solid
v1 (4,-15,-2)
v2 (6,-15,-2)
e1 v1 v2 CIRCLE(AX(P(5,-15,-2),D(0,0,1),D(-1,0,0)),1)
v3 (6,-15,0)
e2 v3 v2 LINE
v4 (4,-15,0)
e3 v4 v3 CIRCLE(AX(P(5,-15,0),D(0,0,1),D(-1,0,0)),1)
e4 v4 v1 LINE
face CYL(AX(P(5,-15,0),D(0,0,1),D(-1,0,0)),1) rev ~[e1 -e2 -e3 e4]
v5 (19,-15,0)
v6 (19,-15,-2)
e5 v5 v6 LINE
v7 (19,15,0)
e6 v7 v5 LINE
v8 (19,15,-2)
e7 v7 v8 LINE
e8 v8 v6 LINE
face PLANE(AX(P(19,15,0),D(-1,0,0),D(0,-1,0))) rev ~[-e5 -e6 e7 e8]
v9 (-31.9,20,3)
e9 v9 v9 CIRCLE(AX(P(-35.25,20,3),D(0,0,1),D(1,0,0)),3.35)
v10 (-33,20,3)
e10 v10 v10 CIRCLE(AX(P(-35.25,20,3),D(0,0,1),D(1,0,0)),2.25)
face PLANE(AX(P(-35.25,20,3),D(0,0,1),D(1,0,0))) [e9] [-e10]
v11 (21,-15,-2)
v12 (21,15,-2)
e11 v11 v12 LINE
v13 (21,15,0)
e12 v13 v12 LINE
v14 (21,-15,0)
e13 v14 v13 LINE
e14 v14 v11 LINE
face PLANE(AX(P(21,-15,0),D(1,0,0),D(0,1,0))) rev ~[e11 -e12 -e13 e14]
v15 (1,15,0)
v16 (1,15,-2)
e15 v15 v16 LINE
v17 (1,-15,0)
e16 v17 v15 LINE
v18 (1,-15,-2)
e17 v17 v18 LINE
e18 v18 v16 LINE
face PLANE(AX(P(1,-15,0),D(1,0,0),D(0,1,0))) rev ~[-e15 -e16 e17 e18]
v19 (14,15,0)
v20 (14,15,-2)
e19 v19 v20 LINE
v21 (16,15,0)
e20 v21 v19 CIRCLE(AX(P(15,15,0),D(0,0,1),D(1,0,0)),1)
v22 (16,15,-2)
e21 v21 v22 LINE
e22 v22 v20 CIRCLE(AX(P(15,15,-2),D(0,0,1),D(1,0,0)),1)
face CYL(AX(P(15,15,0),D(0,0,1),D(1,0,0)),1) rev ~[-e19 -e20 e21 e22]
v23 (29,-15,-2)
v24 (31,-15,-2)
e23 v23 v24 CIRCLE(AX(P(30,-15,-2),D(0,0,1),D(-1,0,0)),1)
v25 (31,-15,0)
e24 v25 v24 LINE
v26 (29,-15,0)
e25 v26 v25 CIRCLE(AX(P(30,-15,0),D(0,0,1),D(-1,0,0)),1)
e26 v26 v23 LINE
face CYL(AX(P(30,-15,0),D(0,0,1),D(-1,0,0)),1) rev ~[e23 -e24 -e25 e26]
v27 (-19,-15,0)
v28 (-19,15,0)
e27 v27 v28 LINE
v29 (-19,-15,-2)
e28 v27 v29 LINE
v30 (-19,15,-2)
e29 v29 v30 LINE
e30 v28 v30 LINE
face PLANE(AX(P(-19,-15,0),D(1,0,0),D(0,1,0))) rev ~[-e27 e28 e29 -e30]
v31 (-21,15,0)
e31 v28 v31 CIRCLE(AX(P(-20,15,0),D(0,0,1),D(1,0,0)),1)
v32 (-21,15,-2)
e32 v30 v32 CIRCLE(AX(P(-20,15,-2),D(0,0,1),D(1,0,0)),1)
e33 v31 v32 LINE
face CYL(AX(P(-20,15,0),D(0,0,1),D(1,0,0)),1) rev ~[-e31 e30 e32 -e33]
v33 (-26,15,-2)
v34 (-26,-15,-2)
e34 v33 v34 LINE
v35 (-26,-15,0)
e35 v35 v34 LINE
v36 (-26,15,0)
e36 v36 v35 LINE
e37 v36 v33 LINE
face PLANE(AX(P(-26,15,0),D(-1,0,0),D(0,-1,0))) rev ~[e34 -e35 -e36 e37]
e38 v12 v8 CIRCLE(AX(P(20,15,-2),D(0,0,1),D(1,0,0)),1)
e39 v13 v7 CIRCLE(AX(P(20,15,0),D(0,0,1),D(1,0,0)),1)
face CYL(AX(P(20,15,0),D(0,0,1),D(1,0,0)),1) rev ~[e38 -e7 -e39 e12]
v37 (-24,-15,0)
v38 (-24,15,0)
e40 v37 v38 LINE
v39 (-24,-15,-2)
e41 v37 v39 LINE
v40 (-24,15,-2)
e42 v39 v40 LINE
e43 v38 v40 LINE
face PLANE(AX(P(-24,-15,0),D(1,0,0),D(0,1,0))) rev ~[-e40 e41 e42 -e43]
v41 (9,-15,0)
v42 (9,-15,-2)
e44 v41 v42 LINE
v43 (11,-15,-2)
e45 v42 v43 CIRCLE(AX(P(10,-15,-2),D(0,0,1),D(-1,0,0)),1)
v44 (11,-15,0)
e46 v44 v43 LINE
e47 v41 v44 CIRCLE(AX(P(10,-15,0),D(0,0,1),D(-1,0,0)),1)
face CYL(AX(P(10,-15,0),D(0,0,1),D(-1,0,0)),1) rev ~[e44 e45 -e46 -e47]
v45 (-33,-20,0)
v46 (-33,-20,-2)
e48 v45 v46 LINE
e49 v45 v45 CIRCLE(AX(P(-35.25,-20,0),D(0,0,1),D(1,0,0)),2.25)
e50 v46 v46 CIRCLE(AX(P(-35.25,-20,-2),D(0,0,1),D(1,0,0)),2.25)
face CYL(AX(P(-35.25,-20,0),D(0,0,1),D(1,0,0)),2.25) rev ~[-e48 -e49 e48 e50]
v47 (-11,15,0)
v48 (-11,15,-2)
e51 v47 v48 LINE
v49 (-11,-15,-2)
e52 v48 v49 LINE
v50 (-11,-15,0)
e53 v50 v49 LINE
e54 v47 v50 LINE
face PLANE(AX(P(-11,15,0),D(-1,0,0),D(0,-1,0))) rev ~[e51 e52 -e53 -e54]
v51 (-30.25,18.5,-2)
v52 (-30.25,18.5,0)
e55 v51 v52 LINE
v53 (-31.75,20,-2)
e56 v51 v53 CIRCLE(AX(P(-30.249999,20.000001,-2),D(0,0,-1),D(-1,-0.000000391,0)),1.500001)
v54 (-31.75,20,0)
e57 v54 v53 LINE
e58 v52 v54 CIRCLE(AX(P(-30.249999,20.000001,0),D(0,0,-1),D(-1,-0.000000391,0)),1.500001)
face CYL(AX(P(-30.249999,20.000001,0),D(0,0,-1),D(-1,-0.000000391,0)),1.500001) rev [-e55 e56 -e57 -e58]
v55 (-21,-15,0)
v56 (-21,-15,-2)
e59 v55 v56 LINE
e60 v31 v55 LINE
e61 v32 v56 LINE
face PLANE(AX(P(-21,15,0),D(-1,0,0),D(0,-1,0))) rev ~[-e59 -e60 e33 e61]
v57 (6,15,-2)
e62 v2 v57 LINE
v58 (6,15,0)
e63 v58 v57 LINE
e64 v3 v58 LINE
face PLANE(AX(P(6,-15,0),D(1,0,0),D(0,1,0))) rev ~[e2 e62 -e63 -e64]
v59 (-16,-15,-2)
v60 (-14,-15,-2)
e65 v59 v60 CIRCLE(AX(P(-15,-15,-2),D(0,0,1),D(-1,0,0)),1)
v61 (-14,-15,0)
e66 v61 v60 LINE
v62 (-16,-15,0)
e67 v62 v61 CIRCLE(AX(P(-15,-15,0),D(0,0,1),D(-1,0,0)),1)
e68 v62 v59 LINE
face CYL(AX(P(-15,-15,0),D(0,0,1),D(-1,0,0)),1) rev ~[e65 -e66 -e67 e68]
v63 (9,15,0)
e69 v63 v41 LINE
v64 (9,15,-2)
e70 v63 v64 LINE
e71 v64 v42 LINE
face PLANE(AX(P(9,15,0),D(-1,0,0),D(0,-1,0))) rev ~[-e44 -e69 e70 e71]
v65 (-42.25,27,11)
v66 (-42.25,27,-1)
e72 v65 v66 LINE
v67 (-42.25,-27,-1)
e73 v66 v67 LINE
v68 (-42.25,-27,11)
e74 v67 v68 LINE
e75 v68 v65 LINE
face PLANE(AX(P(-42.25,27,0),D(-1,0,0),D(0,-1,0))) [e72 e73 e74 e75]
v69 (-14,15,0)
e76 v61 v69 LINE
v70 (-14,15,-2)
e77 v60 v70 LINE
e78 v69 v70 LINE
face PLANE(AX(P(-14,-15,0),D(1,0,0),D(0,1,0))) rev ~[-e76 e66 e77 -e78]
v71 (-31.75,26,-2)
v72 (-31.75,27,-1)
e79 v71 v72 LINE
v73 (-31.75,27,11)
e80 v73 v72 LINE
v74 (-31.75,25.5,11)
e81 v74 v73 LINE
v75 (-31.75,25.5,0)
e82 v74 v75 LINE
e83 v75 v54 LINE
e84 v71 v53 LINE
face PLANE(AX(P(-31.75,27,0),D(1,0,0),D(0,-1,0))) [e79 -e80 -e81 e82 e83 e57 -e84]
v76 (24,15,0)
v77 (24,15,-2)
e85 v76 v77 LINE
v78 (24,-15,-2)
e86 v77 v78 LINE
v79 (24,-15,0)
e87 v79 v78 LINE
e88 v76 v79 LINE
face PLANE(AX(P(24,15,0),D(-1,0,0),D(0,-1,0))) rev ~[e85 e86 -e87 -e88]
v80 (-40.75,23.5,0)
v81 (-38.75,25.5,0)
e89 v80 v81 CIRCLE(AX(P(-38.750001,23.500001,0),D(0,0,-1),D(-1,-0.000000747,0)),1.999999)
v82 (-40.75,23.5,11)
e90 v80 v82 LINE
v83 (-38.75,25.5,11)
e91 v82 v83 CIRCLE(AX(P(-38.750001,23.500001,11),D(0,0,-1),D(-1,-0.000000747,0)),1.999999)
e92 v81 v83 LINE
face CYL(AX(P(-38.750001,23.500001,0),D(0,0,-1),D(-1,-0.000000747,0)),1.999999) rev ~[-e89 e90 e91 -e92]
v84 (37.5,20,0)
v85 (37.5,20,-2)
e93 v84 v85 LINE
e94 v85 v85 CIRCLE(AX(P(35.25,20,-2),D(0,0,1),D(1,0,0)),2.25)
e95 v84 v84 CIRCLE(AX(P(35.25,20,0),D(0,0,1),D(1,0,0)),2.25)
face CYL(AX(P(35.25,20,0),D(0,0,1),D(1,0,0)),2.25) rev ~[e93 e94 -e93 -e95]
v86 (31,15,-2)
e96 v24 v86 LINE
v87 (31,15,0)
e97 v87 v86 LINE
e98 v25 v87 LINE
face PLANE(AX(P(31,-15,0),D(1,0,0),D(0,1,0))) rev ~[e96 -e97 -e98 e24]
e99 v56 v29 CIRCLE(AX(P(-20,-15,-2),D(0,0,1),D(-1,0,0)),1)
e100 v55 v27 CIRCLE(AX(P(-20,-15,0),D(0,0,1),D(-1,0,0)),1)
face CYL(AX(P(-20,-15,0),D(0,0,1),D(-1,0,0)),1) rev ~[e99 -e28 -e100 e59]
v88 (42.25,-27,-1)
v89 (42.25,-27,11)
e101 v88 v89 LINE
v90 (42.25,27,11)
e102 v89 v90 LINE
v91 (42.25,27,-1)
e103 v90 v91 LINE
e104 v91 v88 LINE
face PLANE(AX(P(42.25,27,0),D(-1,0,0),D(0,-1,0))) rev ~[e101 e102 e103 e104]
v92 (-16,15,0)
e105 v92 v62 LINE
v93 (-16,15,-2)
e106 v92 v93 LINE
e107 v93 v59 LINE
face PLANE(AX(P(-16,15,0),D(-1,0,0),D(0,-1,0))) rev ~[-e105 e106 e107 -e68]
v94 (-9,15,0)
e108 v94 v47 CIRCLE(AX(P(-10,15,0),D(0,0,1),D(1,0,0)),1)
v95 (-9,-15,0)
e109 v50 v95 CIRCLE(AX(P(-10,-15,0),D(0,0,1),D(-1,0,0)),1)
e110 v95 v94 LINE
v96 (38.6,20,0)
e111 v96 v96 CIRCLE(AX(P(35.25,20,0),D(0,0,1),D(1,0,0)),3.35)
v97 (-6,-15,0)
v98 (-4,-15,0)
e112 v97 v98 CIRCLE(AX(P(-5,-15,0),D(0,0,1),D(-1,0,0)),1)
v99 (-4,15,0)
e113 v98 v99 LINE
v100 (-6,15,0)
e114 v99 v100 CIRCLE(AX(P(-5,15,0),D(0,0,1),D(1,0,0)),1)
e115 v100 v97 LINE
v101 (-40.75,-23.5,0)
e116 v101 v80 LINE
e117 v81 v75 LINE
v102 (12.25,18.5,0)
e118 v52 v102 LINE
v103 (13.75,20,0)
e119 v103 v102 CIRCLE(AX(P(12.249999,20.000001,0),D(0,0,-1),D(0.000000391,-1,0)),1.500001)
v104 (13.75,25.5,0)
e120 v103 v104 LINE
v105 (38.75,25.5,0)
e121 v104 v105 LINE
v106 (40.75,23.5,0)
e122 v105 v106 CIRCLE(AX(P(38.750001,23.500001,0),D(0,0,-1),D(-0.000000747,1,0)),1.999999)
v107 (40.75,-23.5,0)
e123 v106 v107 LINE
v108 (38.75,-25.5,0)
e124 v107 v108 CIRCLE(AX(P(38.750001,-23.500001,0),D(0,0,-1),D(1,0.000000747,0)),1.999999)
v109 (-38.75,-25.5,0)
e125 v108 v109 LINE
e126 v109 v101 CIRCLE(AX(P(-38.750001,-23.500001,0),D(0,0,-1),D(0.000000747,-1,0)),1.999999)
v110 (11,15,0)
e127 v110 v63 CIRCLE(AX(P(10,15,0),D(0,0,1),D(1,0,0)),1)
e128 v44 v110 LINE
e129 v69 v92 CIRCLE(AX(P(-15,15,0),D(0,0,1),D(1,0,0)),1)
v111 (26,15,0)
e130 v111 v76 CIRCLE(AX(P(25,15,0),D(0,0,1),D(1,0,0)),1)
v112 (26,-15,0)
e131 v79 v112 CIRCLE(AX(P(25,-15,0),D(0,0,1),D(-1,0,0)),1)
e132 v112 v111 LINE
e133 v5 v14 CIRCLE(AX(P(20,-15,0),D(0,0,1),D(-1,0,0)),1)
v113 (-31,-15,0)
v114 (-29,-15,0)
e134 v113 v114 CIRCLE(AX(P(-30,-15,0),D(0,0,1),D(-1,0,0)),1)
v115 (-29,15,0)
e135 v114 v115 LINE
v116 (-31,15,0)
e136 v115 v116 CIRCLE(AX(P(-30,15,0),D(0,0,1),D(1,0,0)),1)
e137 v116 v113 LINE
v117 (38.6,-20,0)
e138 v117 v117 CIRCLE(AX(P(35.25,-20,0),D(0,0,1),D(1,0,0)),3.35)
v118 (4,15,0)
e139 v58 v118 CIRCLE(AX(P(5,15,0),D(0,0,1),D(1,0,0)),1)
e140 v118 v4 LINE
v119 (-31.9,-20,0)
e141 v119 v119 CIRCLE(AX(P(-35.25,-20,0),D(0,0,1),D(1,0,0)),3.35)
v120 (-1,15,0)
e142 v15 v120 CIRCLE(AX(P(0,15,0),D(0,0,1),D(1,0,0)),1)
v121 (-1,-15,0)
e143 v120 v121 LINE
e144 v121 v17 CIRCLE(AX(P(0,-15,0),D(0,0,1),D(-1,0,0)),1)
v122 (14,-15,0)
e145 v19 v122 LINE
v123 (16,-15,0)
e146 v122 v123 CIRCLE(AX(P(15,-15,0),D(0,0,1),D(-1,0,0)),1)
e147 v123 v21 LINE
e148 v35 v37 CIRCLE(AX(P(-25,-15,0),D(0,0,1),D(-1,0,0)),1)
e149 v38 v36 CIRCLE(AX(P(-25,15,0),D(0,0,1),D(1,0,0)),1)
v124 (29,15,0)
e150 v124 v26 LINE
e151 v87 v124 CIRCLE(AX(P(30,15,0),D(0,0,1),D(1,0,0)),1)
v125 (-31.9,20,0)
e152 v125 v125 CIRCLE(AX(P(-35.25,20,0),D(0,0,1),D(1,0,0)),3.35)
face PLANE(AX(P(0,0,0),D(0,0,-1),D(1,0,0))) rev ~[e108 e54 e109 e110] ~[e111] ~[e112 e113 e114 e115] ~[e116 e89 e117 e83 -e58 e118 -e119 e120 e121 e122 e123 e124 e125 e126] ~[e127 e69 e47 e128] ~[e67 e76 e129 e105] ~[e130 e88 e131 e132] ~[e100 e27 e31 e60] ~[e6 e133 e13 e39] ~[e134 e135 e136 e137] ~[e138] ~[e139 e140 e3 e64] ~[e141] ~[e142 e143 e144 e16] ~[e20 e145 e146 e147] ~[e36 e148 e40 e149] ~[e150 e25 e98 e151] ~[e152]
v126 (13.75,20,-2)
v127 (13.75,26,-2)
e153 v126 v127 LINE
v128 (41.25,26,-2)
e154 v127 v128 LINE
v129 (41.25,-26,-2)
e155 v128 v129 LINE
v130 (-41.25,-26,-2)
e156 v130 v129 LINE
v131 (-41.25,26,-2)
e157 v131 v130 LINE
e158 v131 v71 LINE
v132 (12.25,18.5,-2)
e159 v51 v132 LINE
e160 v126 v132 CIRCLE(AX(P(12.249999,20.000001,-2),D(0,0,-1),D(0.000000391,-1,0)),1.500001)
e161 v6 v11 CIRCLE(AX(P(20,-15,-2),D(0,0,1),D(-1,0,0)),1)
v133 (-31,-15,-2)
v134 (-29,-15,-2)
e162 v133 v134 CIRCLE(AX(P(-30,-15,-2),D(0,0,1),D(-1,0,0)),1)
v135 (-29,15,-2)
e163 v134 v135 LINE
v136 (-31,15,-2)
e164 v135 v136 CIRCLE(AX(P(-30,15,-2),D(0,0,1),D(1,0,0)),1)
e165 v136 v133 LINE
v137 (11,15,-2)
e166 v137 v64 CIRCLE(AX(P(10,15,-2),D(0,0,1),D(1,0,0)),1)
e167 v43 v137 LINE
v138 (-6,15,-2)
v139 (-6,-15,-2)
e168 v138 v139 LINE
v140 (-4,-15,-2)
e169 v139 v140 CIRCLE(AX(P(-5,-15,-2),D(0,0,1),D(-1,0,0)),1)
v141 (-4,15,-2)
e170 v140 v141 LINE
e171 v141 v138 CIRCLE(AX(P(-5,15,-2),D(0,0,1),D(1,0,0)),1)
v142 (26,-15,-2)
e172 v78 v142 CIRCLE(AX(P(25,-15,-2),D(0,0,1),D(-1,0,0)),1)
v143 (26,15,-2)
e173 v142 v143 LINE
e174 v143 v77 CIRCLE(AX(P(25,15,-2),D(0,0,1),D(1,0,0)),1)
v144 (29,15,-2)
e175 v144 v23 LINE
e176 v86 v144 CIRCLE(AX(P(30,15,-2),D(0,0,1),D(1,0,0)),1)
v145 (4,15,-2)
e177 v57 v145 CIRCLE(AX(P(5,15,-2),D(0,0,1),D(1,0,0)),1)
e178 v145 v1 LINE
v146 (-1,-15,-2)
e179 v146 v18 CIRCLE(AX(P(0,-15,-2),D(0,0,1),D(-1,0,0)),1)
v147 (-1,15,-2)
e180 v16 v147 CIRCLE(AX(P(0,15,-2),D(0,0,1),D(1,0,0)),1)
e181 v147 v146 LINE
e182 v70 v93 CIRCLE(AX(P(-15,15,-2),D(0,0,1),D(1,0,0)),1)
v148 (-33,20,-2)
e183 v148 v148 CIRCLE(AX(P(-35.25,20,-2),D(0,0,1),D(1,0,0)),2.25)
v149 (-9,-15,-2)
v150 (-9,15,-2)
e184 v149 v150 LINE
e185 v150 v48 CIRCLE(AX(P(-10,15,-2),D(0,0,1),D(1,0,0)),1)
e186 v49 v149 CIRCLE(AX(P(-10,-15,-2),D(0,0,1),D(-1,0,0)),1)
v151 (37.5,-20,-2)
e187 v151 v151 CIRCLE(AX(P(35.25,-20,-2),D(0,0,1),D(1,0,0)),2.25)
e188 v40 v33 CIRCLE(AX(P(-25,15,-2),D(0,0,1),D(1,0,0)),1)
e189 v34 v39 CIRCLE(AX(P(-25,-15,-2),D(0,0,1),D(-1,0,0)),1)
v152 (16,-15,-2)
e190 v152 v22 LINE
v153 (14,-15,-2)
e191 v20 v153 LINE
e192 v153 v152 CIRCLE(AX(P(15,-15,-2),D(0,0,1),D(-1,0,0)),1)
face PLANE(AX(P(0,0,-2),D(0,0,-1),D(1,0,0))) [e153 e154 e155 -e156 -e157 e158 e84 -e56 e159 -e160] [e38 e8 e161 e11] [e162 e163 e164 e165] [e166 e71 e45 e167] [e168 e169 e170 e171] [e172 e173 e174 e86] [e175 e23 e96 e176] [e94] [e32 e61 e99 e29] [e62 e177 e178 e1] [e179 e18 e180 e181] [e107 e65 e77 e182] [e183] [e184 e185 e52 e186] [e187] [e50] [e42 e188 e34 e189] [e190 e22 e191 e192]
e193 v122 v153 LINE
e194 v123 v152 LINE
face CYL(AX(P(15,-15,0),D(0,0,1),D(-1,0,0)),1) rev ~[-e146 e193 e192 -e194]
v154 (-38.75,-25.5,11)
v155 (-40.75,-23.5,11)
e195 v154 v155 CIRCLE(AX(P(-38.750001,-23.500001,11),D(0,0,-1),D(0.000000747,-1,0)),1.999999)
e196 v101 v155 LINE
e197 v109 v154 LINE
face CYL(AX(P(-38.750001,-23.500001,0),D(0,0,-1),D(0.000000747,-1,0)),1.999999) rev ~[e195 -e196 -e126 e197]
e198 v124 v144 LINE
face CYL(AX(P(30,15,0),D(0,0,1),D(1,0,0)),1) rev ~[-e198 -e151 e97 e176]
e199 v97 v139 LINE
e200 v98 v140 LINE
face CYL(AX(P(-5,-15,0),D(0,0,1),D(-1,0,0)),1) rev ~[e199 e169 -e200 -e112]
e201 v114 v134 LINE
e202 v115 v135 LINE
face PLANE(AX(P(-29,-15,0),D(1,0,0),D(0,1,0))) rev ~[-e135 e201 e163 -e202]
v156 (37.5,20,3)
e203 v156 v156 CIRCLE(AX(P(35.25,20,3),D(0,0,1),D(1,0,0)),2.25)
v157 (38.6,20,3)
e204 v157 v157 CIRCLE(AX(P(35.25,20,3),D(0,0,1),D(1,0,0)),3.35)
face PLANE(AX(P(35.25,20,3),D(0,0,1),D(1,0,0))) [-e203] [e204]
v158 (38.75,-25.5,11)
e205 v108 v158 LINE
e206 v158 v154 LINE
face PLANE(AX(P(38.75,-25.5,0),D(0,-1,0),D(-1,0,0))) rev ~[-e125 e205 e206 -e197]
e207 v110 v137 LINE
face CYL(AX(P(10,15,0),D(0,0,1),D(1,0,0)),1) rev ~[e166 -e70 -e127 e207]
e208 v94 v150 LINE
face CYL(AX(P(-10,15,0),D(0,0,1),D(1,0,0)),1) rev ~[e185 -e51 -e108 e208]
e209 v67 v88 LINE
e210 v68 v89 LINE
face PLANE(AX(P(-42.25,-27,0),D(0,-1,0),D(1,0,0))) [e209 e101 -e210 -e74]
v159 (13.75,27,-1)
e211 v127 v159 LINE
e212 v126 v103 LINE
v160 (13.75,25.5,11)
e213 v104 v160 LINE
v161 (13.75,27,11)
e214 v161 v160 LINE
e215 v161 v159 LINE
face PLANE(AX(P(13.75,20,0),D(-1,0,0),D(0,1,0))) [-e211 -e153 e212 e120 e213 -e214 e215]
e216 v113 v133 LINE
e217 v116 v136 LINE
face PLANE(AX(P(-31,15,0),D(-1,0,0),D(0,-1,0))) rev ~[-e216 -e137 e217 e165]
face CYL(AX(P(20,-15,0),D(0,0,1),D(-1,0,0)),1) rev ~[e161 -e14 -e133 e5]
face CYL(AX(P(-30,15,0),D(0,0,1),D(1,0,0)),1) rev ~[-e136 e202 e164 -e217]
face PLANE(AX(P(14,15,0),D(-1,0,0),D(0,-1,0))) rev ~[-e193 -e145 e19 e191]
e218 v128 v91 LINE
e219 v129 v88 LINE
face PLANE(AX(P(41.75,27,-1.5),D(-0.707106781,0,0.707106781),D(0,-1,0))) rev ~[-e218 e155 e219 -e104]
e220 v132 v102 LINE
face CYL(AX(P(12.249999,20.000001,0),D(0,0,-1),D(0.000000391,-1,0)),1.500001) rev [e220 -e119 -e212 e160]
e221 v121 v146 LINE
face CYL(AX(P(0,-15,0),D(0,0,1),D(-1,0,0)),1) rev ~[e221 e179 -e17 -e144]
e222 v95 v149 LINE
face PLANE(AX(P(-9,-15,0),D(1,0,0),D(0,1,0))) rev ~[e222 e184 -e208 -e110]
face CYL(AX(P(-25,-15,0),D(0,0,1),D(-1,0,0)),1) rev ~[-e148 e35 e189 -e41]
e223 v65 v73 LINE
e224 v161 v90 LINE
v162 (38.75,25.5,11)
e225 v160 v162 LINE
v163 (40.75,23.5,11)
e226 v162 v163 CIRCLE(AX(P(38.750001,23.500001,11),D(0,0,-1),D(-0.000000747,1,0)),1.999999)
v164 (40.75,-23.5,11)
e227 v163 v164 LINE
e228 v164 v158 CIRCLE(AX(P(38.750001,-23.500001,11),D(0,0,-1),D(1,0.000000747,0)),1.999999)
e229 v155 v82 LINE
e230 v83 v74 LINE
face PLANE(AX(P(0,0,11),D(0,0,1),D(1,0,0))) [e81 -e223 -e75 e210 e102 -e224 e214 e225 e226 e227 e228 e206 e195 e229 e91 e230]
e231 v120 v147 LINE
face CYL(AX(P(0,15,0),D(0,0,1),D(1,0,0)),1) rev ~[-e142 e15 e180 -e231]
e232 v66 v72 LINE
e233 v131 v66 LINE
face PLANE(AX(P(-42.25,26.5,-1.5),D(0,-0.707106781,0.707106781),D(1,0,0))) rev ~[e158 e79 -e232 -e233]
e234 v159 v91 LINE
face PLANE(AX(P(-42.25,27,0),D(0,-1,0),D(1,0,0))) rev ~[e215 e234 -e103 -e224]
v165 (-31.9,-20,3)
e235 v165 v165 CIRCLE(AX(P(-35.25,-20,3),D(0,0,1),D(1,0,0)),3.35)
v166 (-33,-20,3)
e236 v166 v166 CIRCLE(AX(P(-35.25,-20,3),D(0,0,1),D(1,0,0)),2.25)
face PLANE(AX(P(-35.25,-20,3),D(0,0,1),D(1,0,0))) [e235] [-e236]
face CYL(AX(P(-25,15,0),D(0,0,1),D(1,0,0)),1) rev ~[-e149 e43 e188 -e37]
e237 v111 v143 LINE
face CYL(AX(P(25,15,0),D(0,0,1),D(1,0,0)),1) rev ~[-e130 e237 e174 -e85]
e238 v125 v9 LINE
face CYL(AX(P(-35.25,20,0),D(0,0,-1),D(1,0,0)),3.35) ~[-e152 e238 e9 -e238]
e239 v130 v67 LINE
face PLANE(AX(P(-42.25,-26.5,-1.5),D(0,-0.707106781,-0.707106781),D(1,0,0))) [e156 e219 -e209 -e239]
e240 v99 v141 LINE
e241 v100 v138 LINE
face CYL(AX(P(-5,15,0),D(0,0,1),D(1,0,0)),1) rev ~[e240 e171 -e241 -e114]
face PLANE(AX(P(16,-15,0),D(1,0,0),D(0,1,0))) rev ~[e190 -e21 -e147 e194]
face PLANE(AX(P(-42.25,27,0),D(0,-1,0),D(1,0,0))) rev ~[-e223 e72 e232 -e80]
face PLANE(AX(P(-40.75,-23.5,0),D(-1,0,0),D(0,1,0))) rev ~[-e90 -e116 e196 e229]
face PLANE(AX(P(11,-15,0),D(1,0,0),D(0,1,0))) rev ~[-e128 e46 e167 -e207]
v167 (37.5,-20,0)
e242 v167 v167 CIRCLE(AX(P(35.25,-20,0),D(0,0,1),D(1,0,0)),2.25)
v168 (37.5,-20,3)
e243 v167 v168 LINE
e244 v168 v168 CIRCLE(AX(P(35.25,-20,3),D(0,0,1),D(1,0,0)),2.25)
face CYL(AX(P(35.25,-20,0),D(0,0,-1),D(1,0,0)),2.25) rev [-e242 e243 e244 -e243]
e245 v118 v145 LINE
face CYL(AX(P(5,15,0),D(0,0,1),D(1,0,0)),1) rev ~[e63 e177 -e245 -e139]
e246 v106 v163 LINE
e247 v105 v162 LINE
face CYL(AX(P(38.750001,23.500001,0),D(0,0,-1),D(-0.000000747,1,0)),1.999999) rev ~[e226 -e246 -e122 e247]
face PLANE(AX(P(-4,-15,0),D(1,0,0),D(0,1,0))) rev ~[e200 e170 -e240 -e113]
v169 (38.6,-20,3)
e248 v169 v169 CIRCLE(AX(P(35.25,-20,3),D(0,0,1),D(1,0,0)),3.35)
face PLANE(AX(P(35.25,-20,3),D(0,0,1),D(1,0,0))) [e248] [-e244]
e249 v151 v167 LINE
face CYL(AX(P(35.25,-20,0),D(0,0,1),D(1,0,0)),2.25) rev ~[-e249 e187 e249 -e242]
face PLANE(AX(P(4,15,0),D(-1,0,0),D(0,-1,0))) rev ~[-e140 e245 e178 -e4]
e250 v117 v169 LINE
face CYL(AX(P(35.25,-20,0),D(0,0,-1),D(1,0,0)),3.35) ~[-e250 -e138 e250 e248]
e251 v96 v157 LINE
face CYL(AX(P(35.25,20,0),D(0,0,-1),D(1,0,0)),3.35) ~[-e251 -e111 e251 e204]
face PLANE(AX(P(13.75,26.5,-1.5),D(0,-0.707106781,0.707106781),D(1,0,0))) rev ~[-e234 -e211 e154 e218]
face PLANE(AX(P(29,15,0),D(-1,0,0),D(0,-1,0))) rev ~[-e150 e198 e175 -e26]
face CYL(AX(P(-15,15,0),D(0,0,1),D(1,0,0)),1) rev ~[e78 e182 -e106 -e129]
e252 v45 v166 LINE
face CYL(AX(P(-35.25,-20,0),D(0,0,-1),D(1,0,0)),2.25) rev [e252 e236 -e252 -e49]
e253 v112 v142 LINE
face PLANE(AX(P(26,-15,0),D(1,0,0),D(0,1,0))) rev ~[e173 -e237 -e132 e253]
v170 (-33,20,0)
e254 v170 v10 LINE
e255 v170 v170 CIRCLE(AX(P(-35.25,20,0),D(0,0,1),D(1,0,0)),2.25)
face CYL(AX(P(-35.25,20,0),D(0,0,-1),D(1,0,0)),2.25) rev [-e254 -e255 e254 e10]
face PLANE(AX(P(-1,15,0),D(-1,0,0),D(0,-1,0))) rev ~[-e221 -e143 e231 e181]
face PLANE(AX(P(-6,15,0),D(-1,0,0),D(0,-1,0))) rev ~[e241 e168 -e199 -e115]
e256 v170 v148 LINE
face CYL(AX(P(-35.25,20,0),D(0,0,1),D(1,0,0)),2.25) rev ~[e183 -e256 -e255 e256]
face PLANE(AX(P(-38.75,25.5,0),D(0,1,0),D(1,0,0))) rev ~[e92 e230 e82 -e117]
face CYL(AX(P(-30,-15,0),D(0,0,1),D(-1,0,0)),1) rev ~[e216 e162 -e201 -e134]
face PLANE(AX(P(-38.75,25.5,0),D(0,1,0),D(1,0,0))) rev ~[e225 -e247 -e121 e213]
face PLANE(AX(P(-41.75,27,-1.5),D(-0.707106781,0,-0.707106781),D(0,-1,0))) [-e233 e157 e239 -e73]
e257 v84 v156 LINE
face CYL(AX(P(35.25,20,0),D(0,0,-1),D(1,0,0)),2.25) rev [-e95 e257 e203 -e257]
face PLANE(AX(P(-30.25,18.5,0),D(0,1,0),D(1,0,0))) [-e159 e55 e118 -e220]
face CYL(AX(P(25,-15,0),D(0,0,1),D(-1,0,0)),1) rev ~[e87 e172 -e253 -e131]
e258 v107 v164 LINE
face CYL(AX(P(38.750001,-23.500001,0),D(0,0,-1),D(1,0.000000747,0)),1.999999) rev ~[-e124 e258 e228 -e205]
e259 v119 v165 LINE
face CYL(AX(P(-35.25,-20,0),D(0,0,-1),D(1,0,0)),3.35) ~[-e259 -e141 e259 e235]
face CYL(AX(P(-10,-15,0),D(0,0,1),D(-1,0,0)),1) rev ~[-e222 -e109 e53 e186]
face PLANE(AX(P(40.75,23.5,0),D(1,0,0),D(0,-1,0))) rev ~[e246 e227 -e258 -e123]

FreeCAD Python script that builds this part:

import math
import FreeCAD as App
import Part
import Sketcher
from FreeCAD import Vector
Q = App.Units.Quantity


def edges_at(feature, points):
    """Names of the edges that pass closest to the given points."""
    edges = feature.Shape.Edges
    near = lambda p: min(range(len(edges)), key=lambda i: edges[i].distToShape(Part.Vertex(*p))[0])
    return sorted({f"Edge{near(p) + 1}" for p in points})


def add_polygon(sketch, points):
    """Adds a closed chain of lines whose ends are joined by coincident constraints."""
    first, n = sketch.GeometryCount, len(points)
    for a, b in zip(points, points[1:] + points[:1]):
        sketch.addGeometry(Part.LineSegment(App.Vector(*a, 0), App.Vector(*b, 0)), False)
    for i in range(n):
        sketch.addConstraint(Sketcher.Constraint("Coincident", first + i, 2, first + (i + 1) % n, 1))

doc = App.newDocument("Part")
params = doc.addObject("Spreadsheet::Sheet", "Params")
for row, (alias, value) in enumerate([
    ("sketch1_radius", "1.999999 mm"),
    ("sketch1_height", "54 mm"),
    ("sketch1_height2", "47 mm"),
    ("sketch1_width", "84.5 mm"),
    ("sketch1_width2", "77.5 mm"),
    ("pad1_length", "11 mm"),
    ("sketch2_height", "54 mm"),
    ("sketch2_width", "84.5 mm"),
    ("pad2_length", "2 mm"),
    ("sketch3_diameter", "4.5 mm"),
    ("sketch3_radius", "1.500001 mm"),
    ("sketch3_height", "7 mm"),
    ("sketch3_width", "42.5 mm"),
    ("pocket1_length", "25 mm"),
    ("sketch4_diameter", "6.7 mm"),
    ("sketch4_diameter2", "4.5 mm"),
    ("pad3_length", "3 mm"),
    ("chamfer_size", "1 mm"),
    ("sketch5_radius", "1 mm"),
    ("sketch5_height", "30 mm"),
], start=1):
    params.set(f"A{row}", alias)
    params.set(f"B{row}", "=" + value)
    params.setAlias(f"B{row}", alias)

body = doc.addObject("PartDesign::Body", "Body")

sketch1 = doc.addObject("Sketcher::SketchObject", "Sketch")
body.addObject(sketch1)
sketch1.AttachmentSupport = (doc.XY_Plane, [""])
sketch1.MapMode = "FlatFace"
add_polygon(sketch1, [(-42.2, 27), (-42.2, -27), (42.2, -27), (42.2, 27)])
sketch1.addGeometry(Part.ArcOfCircle(Part.Circle(Vector(-38.8, -23.5, 0), Vector(0, 0, 1), 2), math.radians(180), math.radians(270)), False)
sketch1.addGeometry(Part.LineSegment(Vector(-40.8, -23.5, 0), Vector(-40.8, 23.5, 0)), False)
sketch1.addGeometry(Part.ArcOfCircle(Part.Circle(Vector(-38.8, 23.5, 0), Vector(0, 0, 1), 2), math.radians(90), math.radians(180)), False)
sketch1.addGeometry(Part.LineSegment(Vector(-38.8, 25.5, 0), Vector(38.8, 25.5, 0)), False)
sketch1.addGeometry(Part.ArcOfCircle(Part.Circle(Vector(38.8, 23.5, 0), Vector(0, 0, 1), 2), math.radians(0), math.radians(90)), False)
sketch1.addGeometry(Part.LineSegment(Vector(40.8, 23.5, 0), Vector(40.8, -23.5, 0)), False)
sketch1.addGeometry(Part.ArcOfCircle(Part.Circle(Vector(38.8, -23.5, 0), Vector(0, 0, 1), 2), math.radians(-90), math.radians(0)), False)
sketch1.addGeometry(Part.LineSegment(Vector(38.8, -25.5, 0), Vector(-38.8, -25.5, 0)), False)
sketch1.addConstraint([
    Sketcher.Constraint("Tangent", 4, 1, 5, 1),
    Sketcher.Constraint("Tangent", 5, 2, 6, 2),
    Sketcher.Constraint("Tangent", 6, 1, 7, 1),
    Sketcher.Constraint("Tangent", 7, 2, 8, 2),
    Sketcher.Constraint("Tangent", 8, 1, 9, 1),
    Sketcher.Constraint("Tangent", 9, 2, 10, 2),
    Sketcher.Constraint("Tangent", 10, 1, 11, 1),
    Sketcher.Constraint("Tangent", 11, 2, 4, 2),
    Sketcher.Constraint("Vertical", 0),
    Sketcher.Constraint("Horizontal", 1),
    Sketcher.Constraint("Vertical", 2),
    Sketcher.Constraint("Horizontal", 3),
    Sketcher.Constraint("Vertical", 5),
    Sketcher.Constraint("Horizontal", 7),
    Sketcher.Constraint("Vertical", 9),
    Sketcher.Constraint("Horizontal", 11),
    Sketcher.Constraint("Equal", 4, 6),
    Sketcher.Constraint("Equal", 6, 8),
    Sketcher.Constraint("Equal", 8, 10),
    Sketcher.Constraint("Symmetric", 4, 3, 8, 3, -1, 1),
    Sketcher.Constraint("Symmetric", 0, 2, 2, 2, -1, 1),
    Sketcher.Constraint("Radius", 4, Q("1.999999 mm")),
    Sketcher.Constraint("DistanceY", 0, 2, 0, 1, Q("54 mm")),
    Sketcher.Constraint("DistanceY", 5, 1, 5, 2, Q("47 mm")),
    Sketcher.Constraint("DistanceX", 1, 1, 1, 2, Q("84.5 mm")),
    Sketcher.Constraint("DistanceX", 7, 1, 7, 2, Q("77.5 mm")),
])
sketch1.setExpression("Constraints[25]", "Params.sketch1_radius")
sketch1.setExpression("Constraints[26]", "Params.sketch1_height")
sketch1.setExpression("Constraints[27]", "Params.sketch1_height2")
sketch1.setExpression("Constraints[28]", "Params.sketch1_width")
sketch1.setExpression("Constraints[29]", "Params.sketch1_width2")
pad1 = doc.addObject("PartDesign::Pad", "Pad")
body.addObject(pad1)
pad1.Profile = sketch1
pad1.setExpression("Length", "Params.pad1_length")

sketch2 = doc.addObject("Sketcher::SketchObject", "Sketch001")
body.addObject(sketch2)
sketch2.AttachmentSupport = (doc.XY_Plane, [""])
sketch2.MapMode = "FlatFace"
add_polygon(sketch2, [(-42, -27), (-42, 27), (42, 27), (42, -27)])
sketch2.addConstraint([
    Sketcher.Constraint("Vertical", 0),
    Sketcher.Constraint("Horizontal", 1),
    Sketcher.Constraint("Vertical", 2),
    Sketcher.Constraint("Horizontal", 3),
    Sketcher.Constraint("Symmetric", 0, 2, 2, 2, -1, 1),
    Sketcher.Constraint("DistanceY", 0, 1, 0, 2, Q("54 mm")),
    Sketcher.Constraint("DistanceX", 1, 1, 1, 2, Q("84.5 mm")),
])
sketch2.setExpression("Constraints[9]", "Params.sketch2_height")
sketch2.setExpression("Constraints[10]", "Params.sketch2_width")
pad2 = doc.addObject("PartDesign::Pad", "Pad001")
body.addObject(pad2)
pad2.Profile = sketch2
pad2.setExpression("Length", "Params.pad2_length")
pad2.Reversed = True

sketch3 = doc.addObject("Sketcher::SketchObject", "Sketch002")
body.addObject(sketch3)
sketch3.AttachmentSupport = (doc.XY_Plane, [""])
sketch3.MapMode = "FlatFace"
sketch3.addGeometry([
    Part.Circle(Vector(-35.2, 20, 0), Vector(0, 0, 1), 2.2),
    Part.ArcOfCircle(Part.Circle(Vector(-30.2, 20, 0), Vector(0, 0, 1), 1.5), math.radians(-180), math.radians(-90)),
    Part.LineSegment(Vector(-30.2, 18.5, 0), Vector(12.2, 18.5, 0)),
    Part.ArcOfCircle(Part.Circle(Vector(12.2, 20, 0), Vector(0, 0, 1), 1.5), math.radians(-90), math.radians(0)),
    Part.LineSegment(Vector(13.8, 20, 0), Vector(13.8, 27, 0)),
    Part.LineSegment(Vector(13.8, 27, 0), Vector(-31.8, 27, 0)),
    Part.LineSegment(Vector(-31.8, 27, 0), Vector(-31.8, 20, 0)),
    Part.Circle(Vector(-35.2, -20, 0), Vector(0, 0, 1), 2.2),
    Part.Circle(Vector(35.2, 20, 0), Vector(0, 0, 1), 2.2),
    Part.Circle(Vector(35.2, -20, 0), Vector(0, 0, 1), 2.2),
], False)
sketch3.addConstraint([
    Sketcher.Constraint("Tangent", 1, 2, 2, 1),
    Sketcher.Constraint("Tangent", 2, 2, 3, 1),
    Sketcher.Constraint("Tangent", 3, 2, 4, 1),
    Sketcher.Constraint("Coincident", 4, 2, 5, 1),
    Sketcher.Constraint("Coincident", 5, 2, 6, 1),
    Sketcher.Constraint("Tangent", 6, 2, 1, 1),
    Sketcher.Constraint("Horizontal", 2),
    Sketcher.Constraint("Vertical", 4),
    Sketcher.Constraint("Horizontal", 5),
    Sketcher.Constraint("Vertical", 6),
    Sketcher.Constraint("Equal", 1, 3),
    Sketcher.Constraint("Equal", 0, 7),
    Sketcher.Constraint("Equal", 7, 8),
    Sketcher.Constraint("Equal", 8, 9),
    Sketcher.Constraint("Symmetric", 7, 3, 8, 3, -1, 1),
    Sketcher.Constraint("Symmetric", 0, 3, 9, 3, -1, 1),
    Sketcher.Constraint("Symmetric", 0, 3, 8, 3, -2),
    Sketcher.Constraint("Horizontal", 0, 3, 1, 3),
    Sketcher.Constraint("Diameter", 0, Q("4.5 mm")),
    Sketcher.Constraint("Radius", 1, Q("1.500001 mm")),
    Sketcher.Constraint("DistanceY", 4, 1, 4, 2, Q("7 mm")),
    Sketcher.Constraint("DistanceX", 2, 1, 2, 2, Q("42.5 mm")),
    Sketcher.Constraint("DistanceY", -1, 1, 0, 3, Q("20 mm")),
    Sketcher.Constraint("DistanceX", 0, 3, 1, 3, Q("5.000001 mm")),
    Sketcher.Constraint("DistanceX", 3, 3, 8, 3, Q("23.000001 mm")),
])
sketch3.setExpression("Constraints[18]", "Params.sketch3_diameter")
sketch3.setExpression("Constraints[19]", "Params.sketch3_radius")
sketch3.setExpression("Constraints[20]", "Params.sketch3_height")
sketch3.setExpression("Constraints[21]", "Params.sketch3_width")
pocket1 = doc.addObject("PartDesign::Pocket", "Pocket")
body.addObject(pocket1)
pocket1.Profile = sketch3
pocket1.setExpression("Length", "Params.pocket1_length")
pocket1.Midplane = True

sketch4 = doc.addObject("Sketcher::SketchObject", "Sketch003")
body.addObject(sketch4)
sketch4.AttachmentSupport = (doc.XY_Plane, [""])
sketch4.MapMode = "FlatFace"
sketch4.addGeometry([
    Part.Circle(Vector(-35.2, 20, 0), Vector(0, 0, 1), 3.4),
    Part.Circle(Vector(-35.2, 20, 0), Vector(0, 0, 1), 2.2),
    Part.Circle(Vector(35.2, 20, 0), Vector(0, 0, 1), 3.4),
    Part.Circle(Vector(35.2, 20, 0), Vector(0, 0, 1), 2.2),
    Part.Circle(Vector(-35.2, -20, 0), Vector(0, 0, 1), 3.4),
    Part.Circle(Vector(-35.2, -20, 0), Vector(0, 0, 1), 2.2),
    Part.Circle(Vector(35.2, -20, 0), Vector(0, 0, 1), 3.4),
    Part.Circle(Vector(35.2, -20, 0), Vector(0, 0, 1), 2.2),
], False)
sketch4.addConstraint([
    Sketcher.Constraint("Coincident", 1, 3, 0, 3),
    Sketcher.Constraint("Coincident", 3, 3, 2, 3),
    Sketcher.Constraint("Coincident", 5, 3, 4, 3),
    Sketcher.Constraint("Coincident", 7, 3, 6, 3),
    Sketcher.Constraint("Equal", 0, 2),
    Sketcher.Constraint("Equal", 1, 3),
    Sketcher.Constraint("Equal", 2, 4),
    Sketcher.Constraint("Equal", 3, 5),
    Sketcher.Constraint("Equal", 4, 6),
    Sketcher.Constraint("Equal", 5, 7),
    Sketcher.Constraint("Symmetric", 2, 3, 4, 3, -1, 1),
    Sketcher.Constraint("Symmetric", 0, 3, 6, 3, -1, 1),
    Sketcher.Constraint("Symmetric", 0, 3, 2, 3, -2),
    Sketcher.Constraint("Diameter", 0, Q("6.7 mm")),
    Sketcher.Constraint("Diameter", 1, Q("4.5 mm")),
    Sketcher.Constraint("DistanceY", -1, 1, 0, 3, Q("20 mm")),
    Sketcher.Constraint("DistanceX", 0, 3, 2, 3, Q("70.5 mm")),
])
sketch4.setExpression("Constraints[13]", "Params.sketch4_diameter")
sketch4.setExpression("Constraints[14]", "Params.sketch4_diameter2")
pad3 = doc.addObject("PartDesign::Pad", "Pad002")
body.addObject(pad3)
pad3.Profile = sketch4
pad3.setExpression("Length", "Params.pad3_length")
doc.recompute()

chamfer = doc.addObject("PartDesign::Chamfer", "Chamfer")
body.addObject(chamfer)
chamfer.Base = (pad3, edges_at(pad3, [
    (-42.25, 0, -2),
    (-37, 27, -2),
    (28, 27, -2),
    (0, -27, -2),
    (42.25, 0, -2),
]))
chamfer.setExpression("Size", "Params.chamfer_size")

sketch5 = doc.addObject("Sketcher::SketchObject", "Sketch004")
body.addObject(sketch5)
sketch5.AttachmentSupport = (doc.XY_Plane, [""])
sketch5.MapMode = "FlatFace"
sketch5.addGeometry([
    Part.ArcOfCircle(Part.Circle(Vector(0, 15, 0), Vector(0, 0, 1), 1), math.radians(0), math.radians(180)),
    Part.LineSegment(Vector(-1, 15, 0), Vector(-1, -15, 0)),
    Part.ArcOfCircle(Part.Circle(Vector(0, -15, 0), Vector(0, 0, 1), 1), math.radians(180), math.radians(360)),
    Part.LineSegment(Vector(1, -15, 0), Vector(1, 15, 0)),
    Part.LineSegment(Vector(6, -15, 0), Vector(6, 15, 0)),
    Part.ArcOfCircle(Part.Circle(Vector(5, 15, 0), Vector(0, 0, 1), 1), math.radians(0), math.radians(180)),
    Part.LineSegment(Vector(4, 15, 0), Vector(4, -15, 0)),
    Part.ArcOfCircle(Part.Circle(Vector(5, -15, 0), Vector(0, 0, 1), 1), math.radians(180), math.radians(360)),
    Part.LineSegment(Vector(11, -15, 0), Vector(11, 15, 0)),
    Part.ArcOfCircle(Part.Circle(Vector(10, 15, 0), Vector(0, 0, 1), 1), math.radians(0), math.radians(180)),
    Part.LineSegment(Vector(9, 15, 0), Vector(9, -15, 0)),
    Part.ArcOfCircle(Part.Circle(Vector(10, -15, 0), Vector(0, 0, 1), 1), math.radians(180), math.radians(360)),
    Part.LineSegment(Vector(16, -15, 0), Vector(16, 15, 0)),
    Part.ArcOfCircle(Part.Circle(Vector(15, 15, 0), Vector(0, 0, 1), 1), math.radians(0), math.radians(180)),
    Part.LineSegment(Vector(14, 15, 0), Vector(14, -15, 0)),
    Part.ArcOfCircle(Part.Circle(Vector(15, -15, 0), Vector(0, 0, 1), 1), math.radians(180), math.radians(360)),
    Part.LineSegment(Vector(21, -15, 0), Vector(21, 15, 0)),
    Part.ArcOfCircle(Part.Circle(Vector(20, 15, 0), Vector(0, 0, 1), 1), math.radians(0), math.radians(180)),
    Part.LineSegment(Vector(19, 15, 0), Vector(19, -15, 0)),
    Part.ArcOfCircle(Part.Circle(Vector(20, -15, 0), Vector(0, 0, 1), 1), math.radians(180), math.radians(360)),
    Part.LineSegment(Vector(26, -15, 0), Vector(26, 15, 0)),
    Part.ArcOfCircle(Part.Circle(Vector(25, 15, 0), Vector(0, 0, 1), 1), math.radians(0), math.radians(180)),
    Part.LineSegment(Vector(24, 15, 0), Vector(24, -15, 0)),
    Part.ArcOfCircle(Part.Circle(Vector(25, -15, 0), Vector(0, 0, 1), 1), math.radians(180), math.radians(360)),
    Part.LineSegment(Vector(-4, -15, 0), Vector(-4, 15, 0)),
    Part.ArcOfCircle(Part.Circle(Vector(-5, 15, 0), Vector(0, 0, 1), 1), math.radians(0), math.radians(180)),
    Part.LineSegment(Vector(-6, 15, 0), Vector(-6, -15, 0)),
    Part.ArcOfCircle(Part.Circle(Vector(-5, -15, 0), Vector(0, 0, 1), 1), math.radians(180), math.radians(360)),
    Part.LineSegment(Vector(-9, -15, 0), Vector(-9, 15, 0)),
    Part.ArcOfCircle(Part.Circle(Vector(-10, 15, 0), Vector(0, 0, 1), 1), math.radians(0), math.radians(180)),
    Part.LineSegment(Vector(-11, 15, 0), Vector(-11, -15, 0)),
    Part.ArcOfCircle(Part.Circle(Vector(-10, -15, 0), Vector(0, 0, 1), 1), math.radians(180), math.radians(360)),
    Part.LineSegment(Vector(-14, -15, 0), Vector(-14, 15, 0)),
    Part.ArcOfCircle(Part.Circle(Vector(-15, 15, 0), Vector(0, 0, 1), 1), math.radians(0), math.radians(180)),
    Part.LineSegment(Vector(-16, 15, 0), Vector(-16, -15, 0)),
    Part.ArcOfCircle(Part.Circle(Vector(-15, -15, 0), Vector(0, 0, 1), 1), math.radians(180), math.radians(360)),
    Part.LineSegment(Vector(-19, -15, 0), Vector(-19, 15, 0)),
    Part.ArcOfCircle(Part.Circle(Vector(-20, 15, 0), Vector(0, 0, 1), 1), math.radians(0), math.radians(180)),
    Part.LineSegment(Vector(-21, 15, 0), Vector(-21, -15, 0)),
    Part.ArcOfCircle(Part.Circle(Vector(-20, -15, 0), Vector(0, 0, 1), 1), math.radians(180), math.radians(360)),
    Part.LineSegment(Vector(-24, -15, 0), Vector(-24, 15, 0)),
    Part.ArcOfCircle(Part.Circle(Vector(-25, 15, 0), Vector(0, 0, 1), 1), math.radians(0), math.radians(180)),
    Part.LineSegment(Vector(-26, 15, 0), Vector(-26, -15, 0)),
    Part.ArcOfCircle(Part.Circle(Vector(-25, -15, 0), Vector(0, 0, 1), 1), math.radians(180), math.radians(360)),
    Part.LineSegment(Vector(-29, -15, 0), Vector(-29, 15, 0)),
    Part.ArcOfCircle(Part.Circle(Vector(-30, 15, 0), Vector(0, 0, 1), 1), math.radians(0), math.radians(180)),
    Part.LineSegment(Vector(-31, 15, 0), Vector(-31, -15, 0)),
    Part.ArcOfCircle(Part.Circle(Vector(-30, -15, 0), Vector(0, 0, 1), 1), math.radians(180), math.radians(360)),
    Part.LineSegment(Vector(31, -15, 0), Vector(31, 15, 0)),
    Part.ArcOfCircle(Part.Circle(Vector(30, 15, 0), Vector(0, 0, 1), 1), math.radians(0), math.radians(180)),
    Part.LineSegment(Vector(29, 15, 0), Vector(29, -15, 0)),
    Part.ArcOfCircle(Part.Circle(Vector(30, -15, 0), Vector(0, 0, 1), 1), math.radians(180), math.radians(360)),
], False)
sketch5.addConstraint([
    Sketcher.Constraint("Tangent", 0, 2, 1, 1),
    Sketcher.Constraint("Tangent", 1, 2, 2, 1),
    Sketcher.Constraint("Tangent", 2, 2, 3, 1),
    Sketcher.Constraint("Tangent", 3, 2, 0, 1),
    Sketcher.Constraint("Tangent", 4, 2, 5, 1),
    Sketcher.Constraint("Tangent", 5, 2, 6, 1),
    Sketcher.Constraint("Tangent", 6, 2, 7, 1),
    Sketcher.Constraint("Tangent", 7, 2, 4, 1),
    Sketcher.Constraint("Tangent", 8, 2, 9, 1),
    Sketcher.Constraint("Tangent", 9, 2, 10, 1),
    Sketcher.Constraint("Tangent", 10, 2, 11, 1),
    Sketcher.Constraint("Tangent", 11, 2, 8, 1),
    Sketcher.Constraint("Tangent", 12, 2, 13, 1),
    Sketcher.Constraint("Tangent", 13, 2, 14, 1),
    Sketcher.Constraint("Tangent", 14, 2, 15, 1),
    Sketcher.Constraint("Tangent", 15, 2, 12, 1),
    Sketcher.Constraint("Tangent", 16, 2, 17, 1),
    Sketcher.Constraint("Tangent", 17, 2, 18, 1),
    Sketcher.Constraint("Tangent", 18, 2, 19, 1),
    Sketcher.Constraint("Tangent", 19, 2, 16, 1),
    Sketcher.Constraint("Tangent", 20, 2, 21, 1),
    Sketcher.Constraint("Tangent", 21, 2, 22, 1),
    Sketcher.Constraint("Tangent", 22, 2, 23, 1),
    Sketcher.Constraint("Tangent", 23, 2, 20, 1),
    Sketcher.Constraint("Tangent", 24, 2, 25, 1),
    Sketcher.Constraint("Tangent", 25, 2, 26, 1),
    Sketcher.Constraint("Tangent", 26, 2, 27, 1),
    Sketcher.Constraint("Tangent", 27, 2, 24, 1),
    Sketcher.Constraint("Tangent", 28, 2, 29, 1),
    Sketcher.Constraint("Tangent", 29, 2, 30, 1),
    Sketcher.Constraint("Tangent", 30, 2, 31, 1),
    Sketcher.Constraint("Tangent", 31, 2, 28, 1),
    Sketcher.Constraint("Tangent", 32, 2, 33, 1),
    Sketcher.Constraint("Tangent", 33, 2, 34, 1),
    Sketcher.Constraint("Tangent", 34, 2, 35, 1),
    Sketcher.Constraint("Tangent", 35, 2, 32, 1),
    Sketcher.Constraint("Tangent", 36, 2, 37, 1),
    Sketcher.Constraint("Tangent", 37, 2, 38, 1),
    Sketcher.Constraint("Tangent", 38, 2, 39, 1),
    Sketcher.Constraint("Tangent", 39, 2, 36, 1),
    Sketcher.Constraint("Tangent", 40, 2, 41, 1),
    Sketcher.Constraint("Tangent", 41, 2, 42, 1),
    Sketcher.Constraint("Tangent", 42, 2, 43, 1),
    Sketcher.Constraint("Tangent", 43, 2, 40, 1),
    Sketcher.Constraint("Tangent", 44, 2, 45, 1),
    Sketcher.Constraint("Tangent", 45, 2, 46, 1),
    Sketcher.Constraint("Tangent", 46, 2, 47, 1),
    Sketcher.Constraint("Tangent", 47, 2, 44, 1),
    Sketcher.Constraint("Tangent", 48, 2, 49, 1),
    Sketcher.Constraint("Tangent", 49, 2, 50, 1),
    Sketcher.Constraint("Tangent", 50, 2, 51, 1),
    Sketcher.Constraint("Tangent", 51, 2, 48, 1),
    Sketcher.Constraint("Vertical", 1),
    Sketcher.Constraint("Vertical", 3),
    Sketcher.Constraint("Vertical", 4),
    Sketcher.Constraint("Vertical", 6),
    Sketcher.Constraint("Vertical", 8),
    Sketcher.Constraint("Vertical", 10),
    Sketcher.Constraint("Vertical", 12),
    Sketcher.Constraint("Vertical", 14),
    Sketcher.Constraint("Vertical", 16),
    Sketcher.Constraint("Vertical", 18),
    Sketcher.Constraint("Vertical", 20),
    Sketcher.Constraint("Vertical", 22),
    Sketcher.Constraint("Vertical", 24),
    Sketcher.Constraint("Vertical", 26),
    Sketcher.Constraint("Vertical", 28),
    Sketcher.Constraint("Vertical", 30),
    Sketcher.Constraint("Vertical", 32),
    Sketcher.Constraint("Vertical", 34),
    Sketcher.Constraint("Vertical", 36),
    Sketcher.Constraint("Vertical", 38),
    Sketcher.Constraint("Vertical", 40),
    Sketcher.Constraint("Vertical", 42),
    Sketcher.Constraint("Vertical", 44),
    Sketcher.Constraint("Vertical", 46),
    Sketcher.Constraint("Vertical", 48),
    Sketcher.Constraint("Vertical", 50),
    Sketcher.Constraint("Equal", 2, 5),
    Sketcher.Constraint("Equal", 7, 9),
    Sketcher.Constraint("Equal", 11, 13),
    Sketcher.Constraint("Equal", 15, 17),
    Sketcher.Constraint("Equal", 19, 21),
    Sketcher.Constraint("Equal", 23, 25),
    Sketcher.Constraint("Equal", 27, 29),
    Sketcher.Constraint("Equal", 31, 33),
    Sketcher.Constraint("Equal", 35, 37),
    Sketcher.Constraint("Equal", 39, 41),
    Sketcher.Constraint("Equal", 43, 45),
    Sketcher.Constraint("Equal", 47, 49),
    Sketcher.Constraint("Symmetric", 0, 3, 2, 3, -1, 1),
    Sketcher.Constraint("Symmetric", 7, 3, 25, 3, -1, 1),
    Sketcher.Constraint("Symmetric", 11, 3, 29, 3, -1, 1),
    Sketcher.Constraint("Symmetric", 15, 3, 33, 3, -1, 1),
    Sketcher.Constraint("Symmetric", 19, 3, 37, 3, -1, 1),
    Sketcher.Constraint("Symmetric", 23, 3, 41, 3, -1, 1),
    Sketcher.Constraint("Symmetric", 47, 3, 49, 3, -1, 1),
    Sketcher.Constraint("Horizontal", 0, 3, 5, 3),
    Sketcher.Constraint("Horizontal", 2, 3, 7, 3),
    Sketcher.Constraint("Horizontal", 5, 3, 9, 3),
    Sketcher.Constraint("Horizontal", 7, 3, 11, 3),
    Sketcher.Constraint("Horizontal", 9, 3, 13, 3),
    Sketcher.Constraint("Horizontal", 11, 3, 15, 3),
    Sketcher.Constraint("Horizontal", 13, 3, 17, 3),
    Sketcher.Constraint("Horizontal", 15, 3, 19, 3),
    Sketcher.Constraint("Horizontal", 17, 3, 21, 3),
    Sketcher.Constraint("Horizontal", 19, 3, 23, 3),
    Sketcher.Constraint("Horizontal", 23, 3, 27, 3),
    Sketcher.Constraint("Horizontal", 27, 3, 31, 3),
    Sketcher.Constraint("Horizontal", 31, 3, 35, 3),
    Sketcher.Constraint("Horizontal", 35, 3, 39, 3),
    Sketcher.Constraint("Horizontal", 39, 3, 43, 3),
    Sketcher.Constraint("Horizontal", 41, 3, 45, 3),
    Sketcher.Constraint("Horizontal", 43, 3, 47, 3),
    Sketcher.Constraint("Horizontal", 47, 3, 51, 3),
    Sketcher.Constraint("Radius", 0, Q("1 mm")),
    Sketcher.Constraint("DistanceY", 1, 2, 1, 1, Q("30 mm")),
    Sketcher.Constraint("DistanceX", -1, 1, 5, 3, Q("5 mm")),
    Sketcher.Constraint("DistanceX", -1, 1, 9, 3, Q("10 mm")),
    Sketcher.Constraint("DistanceX", -1, 1, 13, 3, Q("15 mm")),
    Sketcher.Constraint("DistanceX", -1, 1, 17, 3, Q("20 mm")),
    Sketcher.Constraint("DistanceX", -1, 1, 21, 3, Q("25 mm")),
    Sketcher.Constraint("DistanceX", 45, 3, -1, 1, Q("30 mm")),
])
sketch5.setExpression("Constraints[115]", "Params.sketch5_radius")
sketch5.setExpression("Constraints[116]", "Params.sketch5_height")
pocket2 = doc.addObject("PartDesign::Pocket", "Pocket001")
body.addObject(pocket2)
pocket2.Profile = sketch5
pocket2.Type = "ThroughAll"

doc.recompute()
